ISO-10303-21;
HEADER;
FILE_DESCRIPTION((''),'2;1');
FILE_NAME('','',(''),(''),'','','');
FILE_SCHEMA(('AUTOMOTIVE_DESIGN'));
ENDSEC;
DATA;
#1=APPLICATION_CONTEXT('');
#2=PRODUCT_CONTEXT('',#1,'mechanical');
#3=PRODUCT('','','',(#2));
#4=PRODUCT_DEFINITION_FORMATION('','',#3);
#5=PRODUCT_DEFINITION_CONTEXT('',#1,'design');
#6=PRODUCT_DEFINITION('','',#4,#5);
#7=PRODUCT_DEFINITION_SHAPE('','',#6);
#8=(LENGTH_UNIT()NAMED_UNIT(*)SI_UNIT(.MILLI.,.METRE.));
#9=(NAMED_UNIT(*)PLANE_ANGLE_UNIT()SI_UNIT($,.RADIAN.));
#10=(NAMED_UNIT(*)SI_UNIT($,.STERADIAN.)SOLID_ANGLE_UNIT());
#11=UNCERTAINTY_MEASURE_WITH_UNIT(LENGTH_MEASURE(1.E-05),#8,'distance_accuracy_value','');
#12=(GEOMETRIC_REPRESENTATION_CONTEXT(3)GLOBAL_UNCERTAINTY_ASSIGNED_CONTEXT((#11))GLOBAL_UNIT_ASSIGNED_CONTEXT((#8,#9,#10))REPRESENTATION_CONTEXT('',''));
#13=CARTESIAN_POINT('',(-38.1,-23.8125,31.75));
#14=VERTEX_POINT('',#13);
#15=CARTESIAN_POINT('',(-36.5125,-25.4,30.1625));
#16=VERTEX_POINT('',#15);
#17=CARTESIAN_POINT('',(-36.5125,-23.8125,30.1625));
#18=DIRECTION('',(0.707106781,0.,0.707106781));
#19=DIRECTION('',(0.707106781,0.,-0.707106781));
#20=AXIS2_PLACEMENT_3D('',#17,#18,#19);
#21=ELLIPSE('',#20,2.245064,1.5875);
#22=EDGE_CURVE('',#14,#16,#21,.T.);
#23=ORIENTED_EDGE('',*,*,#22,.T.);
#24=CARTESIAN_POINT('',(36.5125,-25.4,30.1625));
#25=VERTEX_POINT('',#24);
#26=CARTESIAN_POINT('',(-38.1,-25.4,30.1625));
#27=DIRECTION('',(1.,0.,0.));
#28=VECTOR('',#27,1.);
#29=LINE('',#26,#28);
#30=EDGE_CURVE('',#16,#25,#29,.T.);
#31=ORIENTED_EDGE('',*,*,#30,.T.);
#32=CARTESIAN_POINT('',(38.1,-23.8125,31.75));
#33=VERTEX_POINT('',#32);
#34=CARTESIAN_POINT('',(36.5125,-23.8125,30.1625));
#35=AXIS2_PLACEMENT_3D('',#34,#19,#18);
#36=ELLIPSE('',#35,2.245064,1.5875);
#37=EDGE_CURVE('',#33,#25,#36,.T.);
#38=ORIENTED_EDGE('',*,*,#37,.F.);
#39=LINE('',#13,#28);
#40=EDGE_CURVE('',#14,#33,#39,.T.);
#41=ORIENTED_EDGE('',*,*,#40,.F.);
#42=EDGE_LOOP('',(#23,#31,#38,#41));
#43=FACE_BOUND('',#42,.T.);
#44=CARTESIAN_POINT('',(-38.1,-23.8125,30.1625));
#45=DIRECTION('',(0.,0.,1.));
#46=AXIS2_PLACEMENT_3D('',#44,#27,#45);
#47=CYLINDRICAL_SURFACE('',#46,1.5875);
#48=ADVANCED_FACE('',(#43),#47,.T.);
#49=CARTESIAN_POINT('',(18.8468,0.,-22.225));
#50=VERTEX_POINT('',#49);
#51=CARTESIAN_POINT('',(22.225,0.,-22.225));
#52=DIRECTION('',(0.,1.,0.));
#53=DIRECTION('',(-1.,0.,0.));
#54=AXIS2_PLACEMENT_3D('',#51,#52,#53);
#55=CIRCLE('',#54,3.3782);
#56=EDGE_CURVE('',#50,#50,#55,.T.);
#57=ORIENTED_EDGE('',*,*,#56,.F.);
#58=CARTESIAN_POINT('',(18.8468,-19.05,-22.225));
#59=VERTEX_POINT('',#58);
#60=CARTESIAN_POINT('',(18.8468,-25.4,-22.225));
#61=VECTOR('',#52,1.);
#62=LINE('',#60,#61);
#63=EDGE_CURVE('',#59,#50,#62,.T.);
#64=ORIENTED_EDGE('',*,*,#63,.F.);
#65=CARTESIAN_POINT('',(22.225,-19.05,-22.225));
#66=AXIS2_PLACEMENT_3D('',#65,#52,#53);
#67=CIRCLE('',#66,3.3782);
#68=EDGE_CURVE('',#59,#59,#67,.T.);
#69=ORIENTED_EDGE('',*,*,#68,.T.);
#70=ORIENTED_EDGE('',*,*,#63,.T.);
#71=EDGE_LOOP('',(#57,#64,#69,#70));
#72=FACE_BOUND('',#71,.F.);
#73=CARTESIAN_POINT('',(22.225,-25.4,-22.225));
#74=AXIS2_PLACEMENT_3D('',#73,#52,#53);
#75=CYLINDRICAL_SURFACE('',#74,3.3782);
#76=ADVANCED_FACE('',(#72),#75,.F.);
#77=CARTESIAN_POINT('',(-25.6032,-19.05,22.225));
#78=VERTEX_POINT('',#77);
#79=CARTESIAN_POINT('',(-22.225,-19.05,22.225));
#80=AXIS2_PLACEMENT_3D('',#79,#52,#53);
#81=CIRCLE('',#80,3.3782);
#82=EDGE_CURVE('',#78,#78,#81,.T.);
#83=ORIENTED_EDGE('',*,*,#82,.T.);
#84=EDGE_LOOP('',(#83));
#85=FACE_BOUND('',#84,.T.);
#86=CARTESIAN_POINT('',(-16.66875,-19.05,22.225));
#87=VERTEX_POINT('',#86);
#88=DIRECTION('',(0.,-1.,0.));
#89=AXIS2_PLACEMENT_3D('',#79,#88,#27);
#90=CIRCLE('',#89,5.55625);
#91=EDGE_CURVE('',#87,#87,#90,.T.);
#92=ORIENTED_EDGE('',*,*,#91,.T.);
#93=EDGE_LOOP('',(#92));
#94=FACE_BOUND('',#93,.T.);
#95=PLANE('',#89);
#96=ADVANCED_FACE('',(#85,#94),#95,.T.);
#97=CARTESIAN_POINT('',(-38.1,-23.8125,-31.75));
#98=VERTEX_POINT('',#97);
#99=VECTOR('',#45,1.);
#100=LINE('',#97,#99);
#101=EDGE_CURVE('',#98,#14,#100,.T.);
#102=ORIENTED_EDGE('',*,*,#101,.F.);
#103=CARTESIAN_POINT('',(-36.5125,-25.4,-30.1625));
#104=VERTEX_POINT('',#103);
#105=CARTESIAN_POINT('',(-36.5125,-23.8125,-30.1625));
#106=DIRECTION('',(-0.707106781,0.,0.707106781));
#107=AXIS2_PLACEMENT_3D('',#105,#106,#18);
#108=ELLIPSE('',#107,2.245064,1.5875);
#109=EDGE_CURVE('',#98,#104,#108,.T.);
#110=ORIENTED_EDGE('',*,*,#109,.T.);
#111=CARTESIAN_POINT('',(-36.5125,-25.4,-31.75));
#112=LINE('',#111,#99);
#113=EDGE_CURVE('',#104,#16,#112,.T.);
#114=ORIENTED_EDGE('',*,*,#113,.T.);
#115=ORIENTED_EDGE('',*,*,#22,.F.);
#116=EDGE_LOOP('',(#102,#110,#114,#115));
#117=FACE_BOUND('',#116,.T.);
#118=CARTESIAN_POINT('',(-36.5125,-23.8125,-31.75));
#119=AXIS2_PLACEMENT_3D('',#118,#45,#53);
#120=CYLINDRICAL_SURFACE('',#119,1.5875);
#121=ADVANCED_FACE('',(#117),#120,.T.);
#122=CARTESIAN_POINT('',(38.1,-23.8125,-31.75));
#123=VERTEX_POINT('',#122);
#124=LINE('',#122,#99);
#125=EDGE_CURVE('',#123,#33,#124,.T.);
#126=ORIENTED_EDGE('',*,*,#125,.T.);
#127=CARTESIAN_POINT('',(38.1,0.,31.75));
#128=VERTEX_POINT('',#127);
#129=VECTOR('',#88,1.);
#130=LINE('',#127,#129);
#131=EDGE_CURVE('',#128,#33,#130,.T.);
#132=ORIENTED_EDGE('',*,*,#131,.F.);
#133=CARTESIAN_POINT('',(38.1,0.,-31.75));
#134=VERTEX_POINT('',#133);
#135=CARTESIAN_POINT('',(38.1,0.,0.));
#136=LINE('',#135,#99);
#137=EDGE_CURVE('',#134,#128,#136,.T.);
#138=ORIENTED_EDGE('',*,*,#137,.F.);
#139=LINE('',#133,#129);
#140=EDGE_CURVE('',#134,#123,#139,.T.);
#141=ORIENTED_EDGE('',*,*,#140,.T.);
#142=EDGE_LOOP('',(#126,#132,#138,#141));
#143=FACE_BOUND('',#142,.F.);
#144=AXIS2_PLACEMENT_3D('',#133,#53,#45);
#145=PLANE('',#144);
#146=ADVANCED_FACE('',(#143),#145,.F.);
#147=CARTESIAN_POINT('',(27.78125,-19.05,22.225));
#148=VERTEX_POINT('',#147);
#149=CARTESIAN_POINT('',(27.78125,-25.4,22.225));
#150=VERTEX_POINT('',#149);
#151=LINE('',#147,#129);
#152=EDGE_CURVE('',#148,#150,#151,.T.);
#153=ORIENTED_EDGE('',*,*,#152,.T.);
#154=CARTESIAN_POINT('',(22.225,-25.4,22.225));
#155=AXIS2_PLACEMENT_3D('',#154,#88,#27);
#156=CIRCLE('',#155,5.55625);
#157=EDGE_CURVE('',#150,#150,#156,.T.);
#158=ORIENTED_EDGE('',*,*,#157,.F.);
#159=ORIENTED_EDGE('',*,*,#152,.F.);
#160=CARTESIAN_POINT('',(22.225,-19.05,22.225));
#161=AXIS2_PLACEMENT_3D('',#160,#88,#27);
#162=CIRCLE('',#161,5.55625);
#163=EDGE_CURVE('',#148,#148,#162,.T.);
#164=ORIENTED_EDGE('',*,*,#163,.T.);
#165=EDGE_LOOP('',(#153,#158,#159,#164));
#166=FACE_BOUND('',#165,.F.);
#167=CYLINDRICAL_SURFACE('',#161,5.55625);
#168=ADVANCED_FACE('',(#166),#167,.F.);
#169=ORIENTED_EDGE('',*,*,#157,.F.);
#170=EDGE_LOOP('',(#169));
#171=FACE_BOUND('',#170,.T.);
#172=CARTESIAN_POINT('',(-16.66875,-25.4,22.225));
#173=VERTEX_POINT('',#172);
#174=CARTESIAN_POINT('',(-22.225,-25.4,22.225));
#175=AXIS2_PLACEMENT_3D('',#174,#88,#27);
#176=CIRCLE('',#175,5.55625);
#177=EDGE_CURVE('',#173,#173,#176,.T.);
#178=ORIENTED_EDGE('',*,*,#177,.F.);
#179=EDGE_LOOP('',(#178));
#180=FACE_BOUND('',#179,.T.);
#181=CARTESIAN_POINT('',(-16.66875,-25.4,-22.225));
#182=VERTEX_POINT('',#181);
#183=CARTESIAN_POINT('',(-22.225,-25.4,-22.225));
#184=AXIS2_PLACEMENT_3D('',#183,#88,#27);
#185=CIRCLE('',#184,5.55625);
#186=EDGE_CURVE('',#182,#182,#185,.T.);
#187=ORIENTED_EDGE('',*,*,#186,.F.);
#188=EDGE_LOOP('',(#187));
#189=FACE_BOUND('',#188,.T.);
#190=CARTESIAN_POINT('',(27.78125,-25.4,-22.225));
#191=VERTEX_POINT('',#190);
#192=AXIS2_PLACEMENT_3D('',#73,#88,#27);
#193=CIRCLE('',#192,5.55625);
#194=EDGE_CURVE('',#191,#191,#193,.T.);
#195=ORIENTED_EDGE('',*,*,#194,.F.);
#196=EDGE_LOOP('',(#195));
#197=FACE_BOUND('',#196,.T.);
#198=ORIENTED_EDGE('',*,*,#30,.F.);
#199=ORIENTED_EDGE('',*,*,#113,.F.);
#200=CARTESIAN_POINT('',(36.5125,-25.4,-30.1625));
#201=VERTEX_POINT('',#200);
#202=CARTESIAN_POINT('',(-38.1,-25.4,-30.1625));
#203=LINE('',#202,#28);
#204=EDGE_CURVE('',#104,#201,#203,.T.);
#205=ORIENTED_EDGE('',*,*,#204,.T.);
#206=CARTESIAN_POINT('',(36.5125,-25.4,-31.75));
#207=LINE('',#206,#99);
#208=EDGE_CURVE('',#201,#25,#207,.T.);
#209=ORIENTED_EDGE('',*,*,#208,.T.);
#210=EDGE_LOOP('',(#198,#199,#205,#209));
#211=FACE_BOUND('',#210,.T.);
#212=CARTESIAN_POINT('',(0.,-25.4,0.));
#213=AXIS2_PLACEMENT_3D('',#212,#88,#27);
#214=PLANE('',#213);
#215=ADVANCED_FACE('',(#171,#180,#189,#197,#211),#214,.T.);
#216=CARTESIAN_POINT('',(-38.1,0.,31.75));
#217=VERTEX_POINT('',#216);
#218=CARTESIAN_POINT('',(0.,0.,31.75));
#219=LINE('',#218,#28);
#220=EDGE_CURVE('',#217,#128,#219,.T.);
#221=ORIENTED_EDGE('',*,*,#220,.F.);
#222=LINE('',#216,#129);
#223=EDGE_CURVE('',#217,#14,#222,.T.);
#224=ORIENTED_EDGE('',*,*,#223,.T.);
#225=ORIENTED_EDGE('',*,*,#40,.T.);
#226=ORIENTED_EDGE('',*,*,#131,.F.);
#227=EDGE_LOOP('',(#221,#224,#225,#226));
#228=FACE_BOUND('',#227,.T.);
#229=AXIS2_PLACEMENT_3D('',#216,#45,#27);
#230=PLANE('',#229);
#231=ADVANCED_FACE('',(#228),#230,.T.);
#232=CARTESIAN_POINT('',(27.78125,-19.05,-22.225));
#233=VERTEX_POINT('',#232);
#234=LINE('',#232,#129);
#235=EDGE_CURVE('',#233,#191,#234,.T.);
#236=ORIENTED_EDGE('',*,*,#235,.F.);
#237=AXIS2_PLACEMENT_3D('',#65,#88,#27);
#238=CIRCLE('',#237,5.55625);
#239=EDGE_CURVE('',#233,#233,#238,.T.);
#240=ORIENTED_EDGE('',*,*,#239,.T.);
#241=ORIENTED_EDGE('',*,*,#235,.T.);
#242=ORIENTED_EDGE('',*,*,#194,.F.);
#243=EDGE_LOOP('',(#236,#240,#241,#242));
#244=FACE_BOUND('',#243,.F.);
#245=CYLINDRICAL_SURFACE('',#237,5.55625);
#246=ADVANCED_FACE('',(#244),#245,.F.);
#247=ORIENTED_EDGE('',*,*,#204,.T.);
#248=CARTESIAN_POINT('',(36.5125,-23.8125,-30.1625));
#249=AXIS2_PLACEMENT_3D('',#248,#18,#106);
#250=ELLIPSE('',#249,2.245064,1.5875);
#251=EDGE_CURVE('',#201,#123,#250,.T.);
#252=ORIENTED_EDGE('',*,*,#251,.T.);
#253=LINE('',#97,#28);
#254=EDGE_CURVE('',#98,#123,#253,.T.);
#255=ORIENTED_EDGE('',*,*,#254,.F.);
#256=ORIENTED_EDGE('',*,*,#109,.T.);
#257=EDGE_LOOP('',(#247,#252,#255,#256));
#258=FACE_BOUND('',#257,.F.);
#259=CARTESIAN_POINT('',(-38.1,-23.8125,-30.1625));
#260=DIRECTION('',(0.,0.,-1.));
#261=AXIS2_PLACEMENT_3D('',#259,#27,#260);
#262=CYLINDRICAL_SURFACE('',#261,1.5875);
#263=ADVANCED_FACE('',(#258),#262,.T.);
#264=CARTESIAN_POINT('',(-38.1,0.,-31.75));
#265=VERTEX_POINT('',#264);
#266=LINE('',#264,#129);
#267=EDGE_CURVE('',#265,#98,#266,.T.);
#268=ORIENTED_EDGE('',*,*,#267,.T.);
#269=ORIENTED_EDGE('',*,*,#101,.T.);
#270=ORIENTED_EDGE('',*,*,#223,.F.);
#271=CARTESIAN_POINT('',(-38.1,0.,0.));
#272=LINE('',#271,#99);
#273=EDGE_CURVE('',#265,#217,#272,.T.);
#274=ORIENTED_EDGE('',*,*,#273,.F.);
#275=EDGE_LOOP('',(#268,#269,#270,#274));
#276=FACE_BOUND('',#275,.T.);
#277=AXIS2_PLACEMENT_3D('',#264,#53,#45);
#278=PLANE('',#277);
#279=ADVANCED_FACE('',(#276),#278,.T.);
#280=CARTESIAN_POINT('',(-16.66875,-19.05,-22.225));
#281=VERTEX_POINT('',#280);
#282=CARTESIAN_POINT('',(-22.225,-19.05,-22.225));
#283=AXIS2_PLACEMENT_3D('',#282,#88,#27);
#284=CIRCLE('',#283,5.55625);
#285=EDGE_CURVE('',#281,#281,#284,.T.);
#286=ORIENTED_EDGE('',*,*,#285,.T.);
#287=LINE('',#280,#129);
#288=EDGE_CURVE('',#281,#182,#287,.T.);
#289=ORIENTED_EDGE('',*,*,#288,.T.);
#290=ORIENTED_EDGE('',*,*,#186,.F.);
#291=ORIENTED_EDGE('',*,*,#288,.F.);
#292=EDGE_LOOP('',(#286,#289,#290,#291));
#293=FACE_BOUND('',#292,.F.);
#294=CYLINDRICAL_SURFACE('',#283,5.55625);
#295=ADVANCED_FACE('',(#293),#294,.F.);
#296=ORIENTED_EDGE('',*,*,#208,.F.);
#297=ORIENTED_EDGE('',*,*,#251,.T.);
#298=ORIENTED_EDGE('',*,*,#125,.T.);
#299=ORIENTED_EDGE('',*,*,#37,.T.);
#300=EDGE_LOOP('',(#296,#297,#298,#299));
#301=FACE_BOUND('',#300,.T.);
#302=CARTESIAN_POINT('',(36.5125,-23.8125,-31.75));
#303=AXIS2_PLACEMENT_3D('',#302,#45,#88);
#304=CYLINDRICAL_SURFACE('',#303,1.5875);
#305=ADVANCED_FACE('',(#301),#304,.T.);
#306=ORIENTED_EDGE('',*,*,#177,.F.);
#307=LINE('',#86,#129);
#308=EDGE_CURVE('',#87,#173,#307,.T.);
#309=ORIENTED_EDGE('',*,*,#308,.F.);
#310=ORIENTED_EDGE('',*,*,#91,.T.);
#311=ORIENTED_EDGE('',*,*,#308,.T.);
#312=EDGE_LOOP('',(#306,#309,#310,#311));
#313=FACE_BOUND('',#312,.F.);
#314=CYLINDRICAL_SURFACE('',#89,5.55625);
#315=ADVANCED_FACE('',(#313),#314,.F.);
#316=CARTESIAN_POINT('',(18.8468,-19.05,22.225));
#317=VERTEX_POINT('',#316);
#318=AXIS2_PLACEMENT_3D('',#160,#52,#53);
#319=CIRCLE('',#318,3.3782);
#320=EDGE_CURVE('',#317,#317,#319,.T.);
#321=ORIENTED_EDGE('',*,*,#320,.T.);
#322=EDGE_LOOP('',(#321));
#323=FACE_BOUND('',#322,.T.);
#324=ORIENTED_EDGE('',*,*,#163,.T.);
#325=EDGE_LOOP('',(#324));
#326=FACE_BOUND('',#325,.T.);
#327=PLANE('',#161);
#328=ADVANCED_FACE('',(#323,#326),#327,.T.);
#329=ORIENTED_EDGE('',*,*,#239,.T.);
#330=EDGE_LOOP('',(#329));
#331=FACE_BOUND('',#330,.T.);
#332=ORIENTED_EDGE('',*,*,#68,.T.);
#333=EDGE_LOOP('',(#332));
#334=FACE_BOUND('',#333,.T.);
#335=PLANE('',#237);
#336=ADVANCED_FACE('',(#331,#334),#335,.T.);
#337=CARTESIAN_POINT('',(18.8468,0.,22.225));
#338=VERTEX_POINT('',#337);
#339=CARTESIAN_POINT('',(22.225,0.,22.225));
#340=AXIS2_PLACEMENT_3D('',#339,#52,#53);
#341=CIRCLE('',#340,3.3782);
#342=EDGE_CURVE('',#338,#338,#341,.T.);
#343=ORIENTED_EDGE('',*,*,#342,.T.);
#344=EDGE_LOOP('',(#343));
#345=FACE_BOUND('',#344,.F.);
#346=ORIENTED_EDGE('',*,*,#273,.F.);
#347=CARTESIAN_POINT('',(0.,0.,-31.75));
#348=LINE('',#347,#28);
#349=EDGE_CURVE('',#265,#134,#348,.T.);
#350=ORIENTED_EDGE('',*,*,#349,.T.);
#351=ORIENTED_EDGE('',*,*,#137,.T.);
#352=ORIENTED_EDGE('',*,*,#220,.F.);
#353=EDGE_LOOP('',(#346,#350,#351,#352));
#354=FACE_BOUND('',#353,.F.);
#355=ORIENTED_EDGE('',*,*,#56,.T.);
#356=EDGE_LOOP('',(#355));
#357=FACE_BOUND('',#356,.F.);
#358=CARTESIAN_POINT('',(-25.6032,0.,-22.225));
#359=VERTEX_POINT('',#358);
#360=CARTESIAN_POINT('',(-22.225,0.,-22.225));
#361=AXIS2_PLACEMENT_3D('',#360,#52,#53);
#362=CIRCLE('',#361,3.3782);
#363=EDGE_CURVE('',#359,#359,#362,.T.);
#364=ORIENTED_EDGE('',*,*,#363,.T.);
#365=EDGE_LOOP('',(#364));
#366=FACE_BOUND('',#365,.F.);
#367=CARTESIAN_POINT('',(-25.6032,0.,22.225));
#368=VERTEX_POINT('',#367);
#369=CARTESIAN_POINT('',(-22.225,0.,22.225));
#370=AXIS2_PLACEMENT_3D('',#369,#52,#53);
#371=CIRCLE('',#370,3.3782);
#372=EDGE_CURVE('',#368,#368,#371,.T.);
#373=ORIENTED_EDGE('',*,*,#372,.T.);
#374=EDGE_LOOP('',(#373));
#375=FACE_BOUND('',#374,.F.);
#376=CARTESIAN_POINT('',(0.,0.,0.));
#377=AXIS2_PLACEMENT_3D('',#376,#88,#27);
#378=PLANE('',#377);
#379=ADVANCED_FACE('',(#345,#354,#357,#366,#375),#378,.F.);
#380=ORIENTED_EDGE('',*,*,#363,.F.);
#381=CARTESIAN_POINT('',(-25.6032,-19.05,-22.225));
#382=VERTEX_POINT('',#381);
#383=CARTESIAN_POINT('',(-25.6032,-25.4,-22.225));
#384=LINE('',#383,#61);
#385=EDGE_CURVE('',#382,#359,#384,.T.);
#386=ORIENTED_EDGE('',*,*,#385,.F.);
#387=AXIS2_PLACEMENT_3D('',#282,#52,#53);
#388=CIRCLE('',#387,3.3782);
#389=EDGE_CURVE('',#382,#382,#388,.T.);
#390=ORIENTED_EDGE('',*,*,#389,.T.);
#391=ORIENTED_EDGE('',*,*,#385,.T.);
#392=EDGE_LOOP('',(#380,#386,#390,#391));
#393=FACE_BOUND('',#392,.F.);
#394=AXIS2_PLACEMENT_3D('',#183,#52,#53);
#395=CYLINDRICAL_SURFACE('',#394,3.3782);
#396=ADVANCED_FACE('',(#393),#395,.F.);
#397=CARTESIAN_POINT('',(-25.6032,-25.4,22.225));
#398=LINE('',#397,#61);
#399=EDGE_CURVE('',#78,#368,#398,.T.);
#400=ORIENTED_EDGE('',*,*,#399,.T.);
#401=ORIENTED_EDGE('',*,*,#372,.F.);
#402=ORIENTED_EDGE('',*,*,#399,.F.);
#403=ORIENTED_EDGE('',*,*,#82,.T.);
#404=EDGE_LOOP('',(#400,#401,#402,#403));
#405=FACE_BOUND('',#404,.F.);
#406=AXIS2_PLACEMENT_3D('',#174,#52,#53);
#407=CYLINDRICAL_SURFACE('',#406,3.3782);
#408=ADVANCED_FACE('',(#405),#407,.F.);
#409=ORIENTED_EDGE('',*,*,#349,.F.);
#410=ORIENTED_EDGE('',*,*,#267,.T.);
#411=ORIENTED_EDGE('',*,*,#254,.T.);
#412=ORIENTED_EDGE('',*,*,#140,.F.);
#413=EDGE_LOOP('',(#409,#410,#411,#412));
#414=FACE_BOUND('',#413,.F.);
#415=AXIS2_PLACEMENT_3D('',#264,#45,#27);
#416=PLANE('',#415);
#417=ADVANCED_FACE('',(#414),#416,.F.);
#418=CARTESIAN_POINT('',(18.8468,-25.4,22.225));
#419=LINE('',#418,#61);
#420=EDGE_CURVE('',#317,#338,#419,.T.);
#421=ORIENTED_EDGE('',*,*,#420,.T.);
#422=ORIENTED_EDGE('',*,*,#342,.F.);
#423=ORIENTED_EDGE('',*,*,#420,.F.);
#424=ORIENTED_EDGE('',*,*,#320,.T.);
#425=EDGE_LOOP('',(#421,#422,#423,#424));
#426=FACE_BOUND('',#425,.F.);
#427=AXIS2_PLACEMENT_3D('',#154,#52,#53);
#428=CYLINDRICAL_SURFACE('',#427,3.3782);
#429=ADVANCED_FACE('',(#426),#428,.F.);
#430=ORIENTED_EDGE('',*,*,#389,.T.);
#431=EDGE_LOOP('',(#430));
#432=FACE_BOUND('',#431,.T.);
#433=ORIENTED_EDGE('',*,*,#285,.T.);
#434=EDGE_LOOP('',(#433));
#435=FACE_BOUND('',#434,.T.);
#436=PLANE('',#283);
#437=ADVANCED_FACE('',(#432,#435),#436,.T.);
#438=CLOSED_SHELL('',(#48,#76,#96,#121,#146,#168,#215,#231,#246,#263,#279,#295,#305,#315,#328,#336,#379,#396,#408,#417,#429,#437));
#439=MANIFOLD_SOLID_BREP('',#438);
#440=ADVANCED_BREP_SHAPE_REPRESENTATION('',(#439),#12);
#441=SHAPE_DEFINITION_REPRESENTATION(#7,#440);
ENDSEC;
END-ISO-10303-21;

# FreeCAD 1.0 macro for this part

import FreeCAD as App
import Part
import Sketcher
from FreeCAD import Vector
Q = App.Units.Quantity


def edges_at(feature, points):
    """Names of the edges that pass closest to the given points."""
    edges = feature.Shape.Edges
    near = lambda p: min(range(len(edges)), key=lambda i: edges[i].distToShape(Part.Vertex(*p))[0])
    return sorted({f"Edge{near(p) + 1}" for p in points})

doc = App.newDocument("Part")
body = doc.addObject("PartDesign::Body", "Body")

# Sketch on XZ plane
sketch1 = body.newObject("Sketcher::SketchObject", "Sketch")
sketch1.AttachmentSupport = (doc.getObject("XZ_Plane"), [""])
sketch1.MapMode = "FlatFace"
sketch1.addGeometry([
    Part.LineSegment(Vector(-38, 32, 0), Vector(-38, -32, 0)),
    Part.LineSegment(Vector(-38, -32, 0), Vector(38, -32, 0)),
    Part.LineSegment(Vector(38, -32, 0), Vector(38, 32, 0)),
    Part.LineSegment(Vector(38, 32, 0), Vector(-38, 32, 0)),
], False)
sketch1.addConstraint([
    Sketcher.Constraint("Coincident", 0, 2, 1, 1),
    Sketcher.Constraint("Coincident", 1, 2, 2, 1),
    Sketcher.Constraint("Coincident", 2, 2, 3, 1),
    Sketcher.Constraint("Coincident", 3, 2, 0, 1),
    Sketcher.Constraint("Vertical", 0),
    Sketcher.Constraint("Horizontal", 1),
    Sketcher.Constraint("Vertical", 2),
    Sketcher.Constraint("Horizontal", 3),
    Sketcher.Constraint("Symmetric", 0, 2, 2, 2, -1, 1),
    Sketcher.Constraint("DistanceX", 1, 1, 1, 2, Q("3 in")),
    Sketcher.Constraint("DistanceY", 0, 2, 0, 1, Q("2.5 in")),
])
pad1 = body.newObject("PartDesign::Pad", "Pad")
pad1.Profile = sketch1
pad1.Length = Q("1 in")

# Sketch on XZ plane
sketch2 = body.newObject("Sketcher::SketchObject", "Sketch001")
sketch2.AttachmentSupport = (doc.getObject("XZ_Plane"), [""])
sketch2.MapMode = "FlatFace"
sketch2.AttachmentOffset = App.Placement(Vector(0, 0, 1 * 25.4), App.Rotation())
sketch2.addGeometry([
    Part.Circle(Vector(-22.2, 22.2, 0), Vector(0, 0, 1), 3.4),
    Part.Circle(Vector(22.2, 22.2, 0), Vector(0, 0, 1), 3.4),
    Part.Circle(Vector(22.2, -22.2, 0), Vector(0, 0, 1), 3.4),
    Part.Circle(Vector(-22.2, -22.2, 0), Vector(0, 0, 1), 3.4),
], False)
sketch2.addConstraint([
    Sketcher.Constraint("Equal", 0, 1),
    Sketcher.Constraint("Equal", 1, 2),
    Sketcher.Constraint("Equal", 2, 3),
    Sketcher.Constraint("Symmetric", 0, 3, 2, 3, -1, 1),
    Sketcher.Constraint("Symmetric", 1, 3, 3, 3, -1, 1),
    Sketcher.Constraint("Symmetric", 0, 3, 1, 3, -2),
    Sketcher.Constraint("Diameter", 0, Q("0.266 in")),
    Sketcher.Constraint("DistanceX", 0, 3, 1, 3, Q("1.75 in")),
    Sketcher.Constraint("DistanceY", 2, 3, 1, 3, Q("1.75 in")),
])
doc.recompute()
hole = body.newObject("PartDesign::Hole", "Hole")
hole.Profile = sketch2
hole.ThreadType = "None"
hole.Diameter = Q("0.266 in")
hole.DepthType = "ThroughAll"
hole.HoleCutType = "Counterbore"
hole.HoleCutDiameter = Q("0.4375 in")
hole.HoleCutDepth = Q("0.25 in")
doc.recompute()

fillet = body.newObject("PartDesign::Fillet", "Fillet")
fillet.Base = (hole, edges_at(hole, [
    (0, -25.4, 31.75),
    (38.1, -25.4, 0),
    (0, -25.4, -31.75),
    (-38.1, -25.4, 0),
]))
fillet.Radius = Q("0.0625 in")

doc.recompute()
